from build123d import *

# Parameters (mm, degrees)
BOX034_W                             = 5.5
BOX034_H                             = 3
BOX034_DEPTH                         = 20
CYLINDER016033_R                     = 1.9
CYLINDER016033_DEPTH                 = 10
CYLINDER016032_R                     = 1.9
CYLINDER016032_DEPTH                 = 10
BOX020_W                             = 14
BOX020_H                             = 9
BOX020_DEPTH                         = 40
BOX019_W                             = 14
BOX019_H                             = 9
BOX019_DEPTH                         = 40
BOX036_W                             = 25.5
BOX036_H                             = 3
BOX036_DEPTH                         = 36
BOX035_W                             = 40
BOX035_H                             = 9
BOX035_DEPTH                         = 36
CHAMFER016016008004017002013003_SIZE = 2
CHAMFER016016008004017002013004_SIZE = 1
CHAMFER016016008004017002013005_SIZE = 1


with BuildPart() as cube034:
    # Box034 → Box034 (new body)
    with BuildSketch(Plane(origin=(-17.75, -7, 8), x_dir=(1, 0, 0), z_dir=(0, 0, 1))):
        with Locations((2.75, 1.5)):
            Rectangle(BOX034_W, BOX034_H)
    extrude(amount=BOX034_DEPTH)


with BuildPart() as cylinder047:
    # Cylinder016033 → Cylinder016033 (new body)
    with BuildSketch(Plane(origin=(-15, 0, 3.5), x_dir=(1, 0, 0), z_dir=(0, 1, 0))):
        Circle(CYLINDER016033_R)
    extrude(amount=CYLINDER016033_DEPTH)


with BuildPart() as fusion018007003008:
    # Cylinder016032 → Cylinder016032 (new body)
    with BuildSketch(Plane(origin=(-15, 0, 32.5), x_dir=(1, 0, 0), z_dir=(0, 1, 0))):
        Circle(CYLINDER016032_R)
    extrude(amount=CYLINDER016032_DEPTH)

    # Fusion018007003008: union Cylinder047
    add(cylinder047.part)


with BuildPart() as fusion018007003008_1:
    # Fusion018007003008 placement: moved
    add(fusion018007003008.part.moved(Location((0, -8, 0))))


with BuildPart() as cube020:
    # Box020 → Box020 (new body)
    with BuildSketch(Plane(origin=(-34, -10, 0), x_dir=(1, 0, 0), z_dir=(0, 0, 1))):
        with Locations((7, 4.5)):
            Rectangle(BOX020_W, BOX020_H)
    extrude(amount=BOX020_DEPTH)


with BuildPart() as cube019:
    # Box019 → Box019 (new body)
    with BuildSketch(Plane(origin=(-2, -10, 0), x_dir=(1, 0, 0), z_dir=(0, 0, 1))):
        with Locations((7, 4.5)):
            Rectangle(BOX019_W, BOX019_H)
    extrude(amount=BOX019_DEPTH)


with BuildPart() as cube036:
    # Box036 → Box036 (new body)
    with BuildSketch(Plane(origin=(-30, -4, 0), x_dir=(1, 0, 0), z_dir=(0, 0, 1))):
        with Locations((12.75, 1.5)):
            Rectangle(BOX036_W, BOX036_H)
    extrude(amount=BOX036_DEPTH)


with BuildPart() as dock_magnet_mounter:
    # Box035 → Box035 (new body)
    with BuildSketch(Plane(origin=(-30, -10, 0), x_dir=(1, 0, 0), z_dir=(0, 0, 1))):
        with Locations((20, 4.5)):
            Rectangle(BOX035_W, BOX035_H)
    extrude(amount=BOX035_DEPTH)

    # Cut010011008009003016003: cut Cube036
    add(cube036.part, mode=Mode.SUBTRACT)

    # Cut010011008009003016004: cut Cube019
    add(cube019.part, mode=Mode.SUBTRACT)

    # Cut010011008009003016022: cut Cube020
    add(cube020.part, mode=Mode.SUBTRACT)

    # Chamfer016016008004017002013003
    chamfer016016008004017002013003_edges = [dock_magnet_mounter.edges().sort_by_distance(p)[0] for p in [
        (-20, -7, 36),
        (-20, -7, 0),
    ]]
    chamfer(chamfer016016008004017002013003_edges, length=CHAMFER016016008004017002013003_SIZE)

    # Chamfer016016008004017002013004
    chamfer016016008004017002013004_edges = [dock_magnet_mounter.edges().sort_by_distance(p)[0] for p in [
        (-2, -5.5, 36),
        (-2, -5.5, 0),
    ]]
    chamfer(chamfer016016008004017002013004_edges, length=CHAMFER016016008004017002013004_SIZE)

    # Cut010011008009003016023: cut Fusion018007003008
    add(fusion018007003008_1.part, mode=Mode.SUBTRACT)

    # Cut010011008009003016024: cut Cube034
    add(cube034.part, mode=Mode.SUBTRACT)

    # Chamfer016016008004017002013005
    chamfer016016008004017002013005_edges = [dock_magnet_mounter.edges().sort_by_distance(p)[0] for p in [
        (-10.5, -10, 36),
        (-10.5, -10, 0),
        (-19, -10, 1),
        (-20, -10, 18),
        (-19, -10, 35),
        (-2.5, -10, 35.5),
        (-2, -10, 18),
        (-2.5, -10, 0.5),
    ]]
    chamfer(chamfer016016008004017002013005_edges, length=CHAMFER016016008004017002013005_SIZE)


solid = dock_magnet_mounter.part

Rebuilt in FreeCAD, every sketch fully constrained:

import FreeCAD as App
import Part
import Sketcher

V = App.Vector
Q = App.Units.Quantity


def edges_at(feature, points):
    """Names of the edges that pass closest to the given points."""
    edges = feature.Shape.Edges
    near = lambda p: min(range(len(edges)), key=lambda i: edges[i].distToShape(Part.Vertex(*p))[0])
    return sorted({f"Edge{near(p) + 1}" for p in points})

doc = App.newDocument("Part")
body = doc.addObject("PartDesign::Body", "Body")

sketch1 = body.newObject("Sketcher::SketchObject", "Sketch")
sketch1.AttachmentSupport = (doc.getObject("XY_Plane"), [""])
sketch1.MapMode = "FlatFace"
sketch1.AttachmentOffset = App.Placement(V(0, 0, 8), App.Rotation())
sketch1.addGeometry(Part.LineSegment(V(-17.8, -4, 0), V(-17.8, -7, 0)), False)
sketch1.addGeometry(Part.LineSegment(V(-17.8, -7, 0), V(-12.2, -7, 0)), False)
sketch1.addGeometry(Part.LineSegment(V(-12.2, -7, 0), V(-12.2, -4, 0)), False)
sketch1.addGeometry(Part.LineSegment(V(-12.2, -4, 0), V(-17.8, -4, 0)), False)
sketch1.addConstraint(Sketcher.Constraint("Coincident", 0, 2, 1, 1))
sketch1.addConstraint(Sketcher.Constraint("Coincident", 1, 2, 2, 1))
sketch1.addConstraint(Sketcher.Constraint("Coincident", 2, 2, 3, 1))
sketch1.addConstraint(Sketcher.Constraint("Coincident", 3, 2, 0, 1))
sketch1.addConstraint(Sketcher.Constraint("Vertical", 0))
sketch1.addConstraint(Sketcher.Constraint("Horizontal", 1))
sketch1.addConstraint(Sketcher.Constraint("Vertical", 2))
sketch1.addConstraint(Sketcher.Constraint("Horizontal", 3))
sketch1.addConstraint(Sketcher.Constraint("DistanceY", 0, 2, 0, 1, Q("3 mm")))
sketch1.addConstraint(Sketcher.Constraint("DistanceX", 1, 1, 1, 2, Q("5.5 mm")))
sketch1.addConstraint(Sketcher.Constraint("DistanceY", 0, 2, -1, 1, Q("7 mm")))
sketch1.addConstraint(Sketcher.Constraint("DistanceX", 0, 2, -1, 1, Q("17.75 mm")))
pad1 = body.newObject("PartDesign::Pad", "Pad")
pad1.Profile = sketch1
pad1.Length = 20
body2 = doc.addObject("PartDesign::Body", "Body001")

sketch2 = body2.newObject("Sketcher::SketchObject", "Sketch001")
sketch2.AttachmentSupport = (doc.getObject("XZ_Plane001"), [""])
sketch2.MapMode = "FlatFace"
sketch2.addGeometry(Part.Circle(V(-15, 3.5, 0), V(0, 0, 1), 1.9), False)
sketch2.addConstraint(Sketcher.Constraint("Diameter", 0, Q("3.8 mm")))
sketch2.addConstraint(Sketcher.Constraint("DistanceX", 0, 3, -1, 1, Q("15 mm")))
sketch2.addConstraint(Sketcher.Constraint("DistanceY", -1, 1, 0, 3, Q("3.5 mm")))
pad2 = body2.newObject("PartDesign::Pad", "Pad001")
pad2.Profile = sketch2
pad2.Length = 10
pad2.Reversed = True
body3 = doc.addObject("PartDesign::Body", "Body002")
body3.AllowCompound = True

sketch3 = body3.newObject("Sketcher::SketchObject", "Sketch002")
sketch3.AttachmentSupport = (doc.getObject("XZ_Plane002"), [""])
sketch3.MapMode = "FlatFace"
sketch3.addGeometry(Part.Circle(V(-15, 32.5, 0), V(0, 0, 1), 1.9), False)
sketch3.addConstraint(Sketcher.Constraint("Diameter", 0, Q("3.8 mm")))
sketch3.addConstraint(Sketcher.Constraint("DistanceX", 0, 3, -1, 1, Q("15 mm")))
sketch3.addConstraint(Sketcher.Constraint("DistanceY", -1, 1, 0, 3, Q("32.5 mm")))
pad3 = body3.newObject("PartDesign::Pad", "Pad002")
pad3.Profile = sketch3
pad3.Length = 10
pad3.Reversed = True
doc.recompute()

boolean = body3.newObject("PartDesign::Boolean", "Boolean")
boolean.Type = "Fuse"
boolean.addObjects([body2])
body4 = doc.addObject("PartDesign::Body", "Body003")
body4.AllowCompound = True
doc.recompute()

body3.Placement = App.Placement(V(0, -8, 0), App.Rotation(V(0, 0, 1), 0))
boolean2 = body4.newObject("PartDesign::Boolean", "Boolean001")
boolean2.Type = "Fuse"
boolean2.addObjects([body3])
body5 = doc.addObject("PartDesign::Body", "Body004")

sketch4 = body5.newObject("Sketcher::SketchObject", "Sketch003")
sketch4.AttachmentSupport = (doc.getObject("XY_Plane004"), [""])
sketch4.MapMode = "FlatFace"
sketch4.addGeometry(Part.LineSegment(V(-34, -1, 0), V(-34, -10, 0)), False)
sketch4.addGeometry(Part.LineSegment(V(-34, -10, 0), V(-20, -10, 0)), False)
sketch4.addGeometry(Part.LineSegment(V(-20, -10, 0), V(-20, -1, 0)), False)
sketch4.addGeometry(Part.LineSegment(V(-20, -1, 0), V(-34, -1, 0)), False)
sketch4.addConstraint(Sketcher.Constraint("Coincident", 0, 2, 1, 1))
sketch4.addConstraint(Sketcher.Constraint("Coincident", 1, 2, 2, 1))
sketch4.addConstraint(Sketcher.Constraint("Coincident", 2, 2, 3, 1))
sketch4.addConstraint(Sketcher.Constraint("Coincident", 3, 2, 0, 1))
sketch4.addConstraint(Sketcher.Constraint("Vertical", 0))
sketch4.addConstraint(Sketcher.Constraint("Horizontal", 1))
sketch4.addConstraint(Sketcher.Constraint("Vertical", 2))
sketch4.addConstraint(Sketcher.Constraint("Horizontal", 3))
sketch4.addConstraint(Sketcher.Constraint("DistanceX", 1, 1, 1, 2, Q("14 mm")))
sketch4.addConstraint(Sketcher.Constraint("DistanceY", 0, 2, 0, 1, Q("9 mm")))
sketch4.addConstraint(Sketcher.Constraint("DistanceX", 0, 2, -1, 1, Q("34 mm")))
sketch4.addConstraint(Sketcher.Constraint("DistanceY", 0, 2, -1, 1, Q("10 mm")))
pad4 = body5.newObject("PartDesign::Pad", "Pad003")
pad4.Profile = sketch4
pad4.Length = 40
body6 = doc.addObject("PartDesign::Body", "Body005")

sketch5 = body6.newObject("Sketcher::SketchObject", "Sketch004")
sketch5.AttachmentSupport = (doc.getObject("XY_Plane005"), [""])
sketch5.MapMode = "FlatFace"
sketch5.addGeometry(Part.LineSegment(V(-2, -1, 0), V(-2, -10, 0)), False)
sketch5.addGeometry(Part.LineSegment(V(-2, -10, 0), V(12, -10, 0)), False)
sketch5.addGeometry(Part.LineSegment(V(12, -10, 0), V(12, -1, 0)), False)
sketch5.addGeometry(Part.LineSegment(V(12, -1, 0), V(-2, -1, 0)), False)
sketch5.addConstraint(Sketcher.Constraint("Coincident", 0, 2, 1, 1))
sketch5.addConstraint(Sketcher.Constraint("Coincident", 1, 2, 2, 1))
sketch5.addConstraint(Sketcher.Constraint("Coincident", 2, 2, 3, 1))
sketch5.addConstraint(Sketcher.Constraint("Coincident", 3, 2, 0, 1))
sketch5.addConstraint(Sketcher.Constraint("Vertical", 0))
sketch5.addConstraint(Sketcher.Constraint("Horizontal", 1))
sketch5.addConstraint(Sketcher.Constraint("Vertical", 2))
sketch5.addConstraint(Sketcher.Constraint("Horizontal", 3))
sketch5.addConstraint(Sketcher.Constraint("DistanceX", 1, 1, 1, 2, Q("14 mm")))
sketch5.addConstraint(Sketcher.Constraint("DistanceY", 0, 2, 0, 1, Q("9 mm")))
sketch5.addConstraint(Sketcher.Constraint("DistanceX", 0, 2, -1, 1, Q("2 mm")))
sketch5.addConstraint(Sketcher.Constraint("DistanceY", 0, 2, -1, 1, Q("10 mm")))
pad5 = body6.newObject("PartDesign::Pad", "Pad004")
pad5.Profile = sketch5
pad5.Length = 40
body7 = doc.addObject("PartDesign::Body", "Body006")

sketch6 = body7.newObject("Sketcher::SketchObject", "Sketch005")
sketch6.AttachmentSupport = (doc.getObject("XY_Plane006"), [""])
sketch6.MapMode = "FlatFace"
sketch6.addGeometry(Part.LineSegment(V(-30, -1, 0), V(-30, -4, 0)), False)
sketch6.addGeometry(Part.LineSegment(V(-30, -4, 0), V(-4.5, -4, 0)), False)
sketch6.addGeometry(Part.LineSegment(V(-4.5, -4, 0), V(-4.5, -1, 0)), False)
sketch6.addGeometry(Part.LineSegment(V(-4.5, -1, 0), V(-30, -1, 0)), False)
sketch6.addConstraint(Sketcher.Constraint("Coincident", 0, 2, 1, 1))
sketch6.addConstraint(Sketcher.Constraint("Coincident", 1, 2, 2, 1))
sketch6.addConstraint(Sketcher.Constraint("Coincident", 2, 2, 3, 1))
sketch6.addConstraint(Sketcher.Constraint("Coincident", 3, 2, 0, 1))
sketch6.addConstraint(Sketcher.Constraint("Vertical", 0))
sketch6.addConstraint(Sketcher.Constraint("Horizontal", 1))
sketch6.addConstraint(Sketcher.Constraint("Vertical", 2))
sketch6.addConstraint(Sketcher.Constraint("Horizontal", 3))
sketch6.addConstraint(Sketcher.Constraint("DistanceY", 0, 2, 0, 1, Q("3 mm")))
sketch6.addConstraint(Sketcher.Constraint("DistanceX", 1, 1, 1, 2, Q("25.5 mm")))
sketch6.addConstraint(Sketcher.Constraint("DistanceX", 0, 2, -1, 1, Q("30 mm")))
sketch6.addConstraint(Sketcher.Constraint("DistanceY", 0, 2, -1, 1, Q("4 mm")))
pad6 = body7.newObject("PartDesign::Pad", "Pad005")
pad6.Profile = sketch6
pad6.Length = 36
body8 = doc.addObject("PartDesign::Body", "Body007")

sketch7 = body8.newObject("Sketcher::SketchObject", "Sketch006")
sketch7.AttachmentSupport = (doc.getObject("XY_Plane007"), [""])
sketch7.MapMode = "FlatFace"
sketch7.addGeometry(Part.LineSegment(V(-30, -1, 0), V(-30, -10, 0)), False)
sketch7.addGeometry(Part.LineSegment(V(-30, -10, 0), V(10, -10, 0)), False)
sketch7.addGeometry(Part.LineSegment(V(10, -10, 0), V(10, -1, 0)), False)
sketch7.addGeometry(Part.LineSegment(V(10, -1, 0), V(-30, -1, 0)), False)
sketch7.addConstraint(Sketcher.Constraint("Coincident", 0, 2, 1, 1))
sketch7.addConstraint(Sketcher.Constraint("Coincident", 1, 2, 2, 1))
sketch7.addConstraint(Sketcher.Constraint("Coincident", 2, 2, 3, 1))
sketch7.addConstraint(Sketcher.Constraint("Coincident", 3, 2, 0, 1))
sketch7.addConstraint(Sketcher.Constraint("Vertical", 0))
sketch7.addConstraint(Sketcher.Constraint("Horizontal", 1))
sketch7.addConstraint(Sketcher.Constraint("Vertical", 2))
sketch7.addConstraint(Sketcher.Constraint("Horizontal", 3))
sketch7.addConstraint(Sketcher.Constraint("DistanceX", 1, 1, 1, 2, Q("40 mm")))
sketch7.addConstraint(Sketcher.Constraint("DistanceY", 0, 2, 0, 1, Q("9 mm")))
sketch7.addConstraint(Sketcher.Constraint("DistanceX", 0, 2, -1, 1, Q("30 mm")))
sketch7.addConstraint(Sketcher.Constraint("DistanceY", 0, 2, -1, 1, Q("10 mm")))
pad7 = body8.newObject("PartDesign::Pad", "Pad006")
pad7.Profile = sketch7
pad7.Length = 36
doc.recompute()

boolean3 = body8.newObject("PartDesign::Boolean", "Boolean002")
boolean3.Type = "Cut"
boolean3.addObjects([body7])
doc.recompute()

boolean4 = body8.newObject("PartDesign::Boolean", "Boolean003")
boolean4.Type = "Cut"
boolean4.addObjects([body6])
doc.recompute()

boolean5 = body8.newObject("PartDesign::Boolean", "Boolean004")
boolean5.Type = "Cut"
boolean5.addObjects([body5])
doc.recompute()

chamfer = body8.newObject("PartDesign::Chamfer", "Chamfer")
chamfer.Base = (boolean5, edges_at(boolean5, [(-20, -7, 36), (-20, -7, 0)]))
chamfer.Size = 2
doc.recompute()

chamfer2 = body8.newObject("PartDesign::Chamfer", "Chamfer001")
chamfer2.Base = (chamfer, edges_at(chamfer, [(-2, -5.5, 36), (-2, -5.5, 0)]))
chamfer2.Size = 1
doc.recompute()

boolean6 = body8.newObject("PartDesign::Boolean", "Boolean005")
boolean6.Type = "Cut"
boolean6.addObjects([body4])
doc.recompute()

boolean7 = body8.newObject("PartDesign::Boolean", "Boolean006")
boolean7.Type = "Cut"
boolean7.addObjects([body])
doc.recompute()

chamfer3 = body8.newObject("PartDesign::Chamfer", "Chamfer002")
chamfer3.Base = (boolean7, edges_at(boolean7, [
    (-10.5, -10, 36),
    (-10.5, -10, 0),
    (-19, -10, 1),
    (-20, -10, 18),
    (-19, -10, 35),
    (-2.5, -10, 35.5),
    (-2, -10, 18),
    (-2.5, -10, 0.5),
]))
chamfer3.Size = 1

doc.recompute()
